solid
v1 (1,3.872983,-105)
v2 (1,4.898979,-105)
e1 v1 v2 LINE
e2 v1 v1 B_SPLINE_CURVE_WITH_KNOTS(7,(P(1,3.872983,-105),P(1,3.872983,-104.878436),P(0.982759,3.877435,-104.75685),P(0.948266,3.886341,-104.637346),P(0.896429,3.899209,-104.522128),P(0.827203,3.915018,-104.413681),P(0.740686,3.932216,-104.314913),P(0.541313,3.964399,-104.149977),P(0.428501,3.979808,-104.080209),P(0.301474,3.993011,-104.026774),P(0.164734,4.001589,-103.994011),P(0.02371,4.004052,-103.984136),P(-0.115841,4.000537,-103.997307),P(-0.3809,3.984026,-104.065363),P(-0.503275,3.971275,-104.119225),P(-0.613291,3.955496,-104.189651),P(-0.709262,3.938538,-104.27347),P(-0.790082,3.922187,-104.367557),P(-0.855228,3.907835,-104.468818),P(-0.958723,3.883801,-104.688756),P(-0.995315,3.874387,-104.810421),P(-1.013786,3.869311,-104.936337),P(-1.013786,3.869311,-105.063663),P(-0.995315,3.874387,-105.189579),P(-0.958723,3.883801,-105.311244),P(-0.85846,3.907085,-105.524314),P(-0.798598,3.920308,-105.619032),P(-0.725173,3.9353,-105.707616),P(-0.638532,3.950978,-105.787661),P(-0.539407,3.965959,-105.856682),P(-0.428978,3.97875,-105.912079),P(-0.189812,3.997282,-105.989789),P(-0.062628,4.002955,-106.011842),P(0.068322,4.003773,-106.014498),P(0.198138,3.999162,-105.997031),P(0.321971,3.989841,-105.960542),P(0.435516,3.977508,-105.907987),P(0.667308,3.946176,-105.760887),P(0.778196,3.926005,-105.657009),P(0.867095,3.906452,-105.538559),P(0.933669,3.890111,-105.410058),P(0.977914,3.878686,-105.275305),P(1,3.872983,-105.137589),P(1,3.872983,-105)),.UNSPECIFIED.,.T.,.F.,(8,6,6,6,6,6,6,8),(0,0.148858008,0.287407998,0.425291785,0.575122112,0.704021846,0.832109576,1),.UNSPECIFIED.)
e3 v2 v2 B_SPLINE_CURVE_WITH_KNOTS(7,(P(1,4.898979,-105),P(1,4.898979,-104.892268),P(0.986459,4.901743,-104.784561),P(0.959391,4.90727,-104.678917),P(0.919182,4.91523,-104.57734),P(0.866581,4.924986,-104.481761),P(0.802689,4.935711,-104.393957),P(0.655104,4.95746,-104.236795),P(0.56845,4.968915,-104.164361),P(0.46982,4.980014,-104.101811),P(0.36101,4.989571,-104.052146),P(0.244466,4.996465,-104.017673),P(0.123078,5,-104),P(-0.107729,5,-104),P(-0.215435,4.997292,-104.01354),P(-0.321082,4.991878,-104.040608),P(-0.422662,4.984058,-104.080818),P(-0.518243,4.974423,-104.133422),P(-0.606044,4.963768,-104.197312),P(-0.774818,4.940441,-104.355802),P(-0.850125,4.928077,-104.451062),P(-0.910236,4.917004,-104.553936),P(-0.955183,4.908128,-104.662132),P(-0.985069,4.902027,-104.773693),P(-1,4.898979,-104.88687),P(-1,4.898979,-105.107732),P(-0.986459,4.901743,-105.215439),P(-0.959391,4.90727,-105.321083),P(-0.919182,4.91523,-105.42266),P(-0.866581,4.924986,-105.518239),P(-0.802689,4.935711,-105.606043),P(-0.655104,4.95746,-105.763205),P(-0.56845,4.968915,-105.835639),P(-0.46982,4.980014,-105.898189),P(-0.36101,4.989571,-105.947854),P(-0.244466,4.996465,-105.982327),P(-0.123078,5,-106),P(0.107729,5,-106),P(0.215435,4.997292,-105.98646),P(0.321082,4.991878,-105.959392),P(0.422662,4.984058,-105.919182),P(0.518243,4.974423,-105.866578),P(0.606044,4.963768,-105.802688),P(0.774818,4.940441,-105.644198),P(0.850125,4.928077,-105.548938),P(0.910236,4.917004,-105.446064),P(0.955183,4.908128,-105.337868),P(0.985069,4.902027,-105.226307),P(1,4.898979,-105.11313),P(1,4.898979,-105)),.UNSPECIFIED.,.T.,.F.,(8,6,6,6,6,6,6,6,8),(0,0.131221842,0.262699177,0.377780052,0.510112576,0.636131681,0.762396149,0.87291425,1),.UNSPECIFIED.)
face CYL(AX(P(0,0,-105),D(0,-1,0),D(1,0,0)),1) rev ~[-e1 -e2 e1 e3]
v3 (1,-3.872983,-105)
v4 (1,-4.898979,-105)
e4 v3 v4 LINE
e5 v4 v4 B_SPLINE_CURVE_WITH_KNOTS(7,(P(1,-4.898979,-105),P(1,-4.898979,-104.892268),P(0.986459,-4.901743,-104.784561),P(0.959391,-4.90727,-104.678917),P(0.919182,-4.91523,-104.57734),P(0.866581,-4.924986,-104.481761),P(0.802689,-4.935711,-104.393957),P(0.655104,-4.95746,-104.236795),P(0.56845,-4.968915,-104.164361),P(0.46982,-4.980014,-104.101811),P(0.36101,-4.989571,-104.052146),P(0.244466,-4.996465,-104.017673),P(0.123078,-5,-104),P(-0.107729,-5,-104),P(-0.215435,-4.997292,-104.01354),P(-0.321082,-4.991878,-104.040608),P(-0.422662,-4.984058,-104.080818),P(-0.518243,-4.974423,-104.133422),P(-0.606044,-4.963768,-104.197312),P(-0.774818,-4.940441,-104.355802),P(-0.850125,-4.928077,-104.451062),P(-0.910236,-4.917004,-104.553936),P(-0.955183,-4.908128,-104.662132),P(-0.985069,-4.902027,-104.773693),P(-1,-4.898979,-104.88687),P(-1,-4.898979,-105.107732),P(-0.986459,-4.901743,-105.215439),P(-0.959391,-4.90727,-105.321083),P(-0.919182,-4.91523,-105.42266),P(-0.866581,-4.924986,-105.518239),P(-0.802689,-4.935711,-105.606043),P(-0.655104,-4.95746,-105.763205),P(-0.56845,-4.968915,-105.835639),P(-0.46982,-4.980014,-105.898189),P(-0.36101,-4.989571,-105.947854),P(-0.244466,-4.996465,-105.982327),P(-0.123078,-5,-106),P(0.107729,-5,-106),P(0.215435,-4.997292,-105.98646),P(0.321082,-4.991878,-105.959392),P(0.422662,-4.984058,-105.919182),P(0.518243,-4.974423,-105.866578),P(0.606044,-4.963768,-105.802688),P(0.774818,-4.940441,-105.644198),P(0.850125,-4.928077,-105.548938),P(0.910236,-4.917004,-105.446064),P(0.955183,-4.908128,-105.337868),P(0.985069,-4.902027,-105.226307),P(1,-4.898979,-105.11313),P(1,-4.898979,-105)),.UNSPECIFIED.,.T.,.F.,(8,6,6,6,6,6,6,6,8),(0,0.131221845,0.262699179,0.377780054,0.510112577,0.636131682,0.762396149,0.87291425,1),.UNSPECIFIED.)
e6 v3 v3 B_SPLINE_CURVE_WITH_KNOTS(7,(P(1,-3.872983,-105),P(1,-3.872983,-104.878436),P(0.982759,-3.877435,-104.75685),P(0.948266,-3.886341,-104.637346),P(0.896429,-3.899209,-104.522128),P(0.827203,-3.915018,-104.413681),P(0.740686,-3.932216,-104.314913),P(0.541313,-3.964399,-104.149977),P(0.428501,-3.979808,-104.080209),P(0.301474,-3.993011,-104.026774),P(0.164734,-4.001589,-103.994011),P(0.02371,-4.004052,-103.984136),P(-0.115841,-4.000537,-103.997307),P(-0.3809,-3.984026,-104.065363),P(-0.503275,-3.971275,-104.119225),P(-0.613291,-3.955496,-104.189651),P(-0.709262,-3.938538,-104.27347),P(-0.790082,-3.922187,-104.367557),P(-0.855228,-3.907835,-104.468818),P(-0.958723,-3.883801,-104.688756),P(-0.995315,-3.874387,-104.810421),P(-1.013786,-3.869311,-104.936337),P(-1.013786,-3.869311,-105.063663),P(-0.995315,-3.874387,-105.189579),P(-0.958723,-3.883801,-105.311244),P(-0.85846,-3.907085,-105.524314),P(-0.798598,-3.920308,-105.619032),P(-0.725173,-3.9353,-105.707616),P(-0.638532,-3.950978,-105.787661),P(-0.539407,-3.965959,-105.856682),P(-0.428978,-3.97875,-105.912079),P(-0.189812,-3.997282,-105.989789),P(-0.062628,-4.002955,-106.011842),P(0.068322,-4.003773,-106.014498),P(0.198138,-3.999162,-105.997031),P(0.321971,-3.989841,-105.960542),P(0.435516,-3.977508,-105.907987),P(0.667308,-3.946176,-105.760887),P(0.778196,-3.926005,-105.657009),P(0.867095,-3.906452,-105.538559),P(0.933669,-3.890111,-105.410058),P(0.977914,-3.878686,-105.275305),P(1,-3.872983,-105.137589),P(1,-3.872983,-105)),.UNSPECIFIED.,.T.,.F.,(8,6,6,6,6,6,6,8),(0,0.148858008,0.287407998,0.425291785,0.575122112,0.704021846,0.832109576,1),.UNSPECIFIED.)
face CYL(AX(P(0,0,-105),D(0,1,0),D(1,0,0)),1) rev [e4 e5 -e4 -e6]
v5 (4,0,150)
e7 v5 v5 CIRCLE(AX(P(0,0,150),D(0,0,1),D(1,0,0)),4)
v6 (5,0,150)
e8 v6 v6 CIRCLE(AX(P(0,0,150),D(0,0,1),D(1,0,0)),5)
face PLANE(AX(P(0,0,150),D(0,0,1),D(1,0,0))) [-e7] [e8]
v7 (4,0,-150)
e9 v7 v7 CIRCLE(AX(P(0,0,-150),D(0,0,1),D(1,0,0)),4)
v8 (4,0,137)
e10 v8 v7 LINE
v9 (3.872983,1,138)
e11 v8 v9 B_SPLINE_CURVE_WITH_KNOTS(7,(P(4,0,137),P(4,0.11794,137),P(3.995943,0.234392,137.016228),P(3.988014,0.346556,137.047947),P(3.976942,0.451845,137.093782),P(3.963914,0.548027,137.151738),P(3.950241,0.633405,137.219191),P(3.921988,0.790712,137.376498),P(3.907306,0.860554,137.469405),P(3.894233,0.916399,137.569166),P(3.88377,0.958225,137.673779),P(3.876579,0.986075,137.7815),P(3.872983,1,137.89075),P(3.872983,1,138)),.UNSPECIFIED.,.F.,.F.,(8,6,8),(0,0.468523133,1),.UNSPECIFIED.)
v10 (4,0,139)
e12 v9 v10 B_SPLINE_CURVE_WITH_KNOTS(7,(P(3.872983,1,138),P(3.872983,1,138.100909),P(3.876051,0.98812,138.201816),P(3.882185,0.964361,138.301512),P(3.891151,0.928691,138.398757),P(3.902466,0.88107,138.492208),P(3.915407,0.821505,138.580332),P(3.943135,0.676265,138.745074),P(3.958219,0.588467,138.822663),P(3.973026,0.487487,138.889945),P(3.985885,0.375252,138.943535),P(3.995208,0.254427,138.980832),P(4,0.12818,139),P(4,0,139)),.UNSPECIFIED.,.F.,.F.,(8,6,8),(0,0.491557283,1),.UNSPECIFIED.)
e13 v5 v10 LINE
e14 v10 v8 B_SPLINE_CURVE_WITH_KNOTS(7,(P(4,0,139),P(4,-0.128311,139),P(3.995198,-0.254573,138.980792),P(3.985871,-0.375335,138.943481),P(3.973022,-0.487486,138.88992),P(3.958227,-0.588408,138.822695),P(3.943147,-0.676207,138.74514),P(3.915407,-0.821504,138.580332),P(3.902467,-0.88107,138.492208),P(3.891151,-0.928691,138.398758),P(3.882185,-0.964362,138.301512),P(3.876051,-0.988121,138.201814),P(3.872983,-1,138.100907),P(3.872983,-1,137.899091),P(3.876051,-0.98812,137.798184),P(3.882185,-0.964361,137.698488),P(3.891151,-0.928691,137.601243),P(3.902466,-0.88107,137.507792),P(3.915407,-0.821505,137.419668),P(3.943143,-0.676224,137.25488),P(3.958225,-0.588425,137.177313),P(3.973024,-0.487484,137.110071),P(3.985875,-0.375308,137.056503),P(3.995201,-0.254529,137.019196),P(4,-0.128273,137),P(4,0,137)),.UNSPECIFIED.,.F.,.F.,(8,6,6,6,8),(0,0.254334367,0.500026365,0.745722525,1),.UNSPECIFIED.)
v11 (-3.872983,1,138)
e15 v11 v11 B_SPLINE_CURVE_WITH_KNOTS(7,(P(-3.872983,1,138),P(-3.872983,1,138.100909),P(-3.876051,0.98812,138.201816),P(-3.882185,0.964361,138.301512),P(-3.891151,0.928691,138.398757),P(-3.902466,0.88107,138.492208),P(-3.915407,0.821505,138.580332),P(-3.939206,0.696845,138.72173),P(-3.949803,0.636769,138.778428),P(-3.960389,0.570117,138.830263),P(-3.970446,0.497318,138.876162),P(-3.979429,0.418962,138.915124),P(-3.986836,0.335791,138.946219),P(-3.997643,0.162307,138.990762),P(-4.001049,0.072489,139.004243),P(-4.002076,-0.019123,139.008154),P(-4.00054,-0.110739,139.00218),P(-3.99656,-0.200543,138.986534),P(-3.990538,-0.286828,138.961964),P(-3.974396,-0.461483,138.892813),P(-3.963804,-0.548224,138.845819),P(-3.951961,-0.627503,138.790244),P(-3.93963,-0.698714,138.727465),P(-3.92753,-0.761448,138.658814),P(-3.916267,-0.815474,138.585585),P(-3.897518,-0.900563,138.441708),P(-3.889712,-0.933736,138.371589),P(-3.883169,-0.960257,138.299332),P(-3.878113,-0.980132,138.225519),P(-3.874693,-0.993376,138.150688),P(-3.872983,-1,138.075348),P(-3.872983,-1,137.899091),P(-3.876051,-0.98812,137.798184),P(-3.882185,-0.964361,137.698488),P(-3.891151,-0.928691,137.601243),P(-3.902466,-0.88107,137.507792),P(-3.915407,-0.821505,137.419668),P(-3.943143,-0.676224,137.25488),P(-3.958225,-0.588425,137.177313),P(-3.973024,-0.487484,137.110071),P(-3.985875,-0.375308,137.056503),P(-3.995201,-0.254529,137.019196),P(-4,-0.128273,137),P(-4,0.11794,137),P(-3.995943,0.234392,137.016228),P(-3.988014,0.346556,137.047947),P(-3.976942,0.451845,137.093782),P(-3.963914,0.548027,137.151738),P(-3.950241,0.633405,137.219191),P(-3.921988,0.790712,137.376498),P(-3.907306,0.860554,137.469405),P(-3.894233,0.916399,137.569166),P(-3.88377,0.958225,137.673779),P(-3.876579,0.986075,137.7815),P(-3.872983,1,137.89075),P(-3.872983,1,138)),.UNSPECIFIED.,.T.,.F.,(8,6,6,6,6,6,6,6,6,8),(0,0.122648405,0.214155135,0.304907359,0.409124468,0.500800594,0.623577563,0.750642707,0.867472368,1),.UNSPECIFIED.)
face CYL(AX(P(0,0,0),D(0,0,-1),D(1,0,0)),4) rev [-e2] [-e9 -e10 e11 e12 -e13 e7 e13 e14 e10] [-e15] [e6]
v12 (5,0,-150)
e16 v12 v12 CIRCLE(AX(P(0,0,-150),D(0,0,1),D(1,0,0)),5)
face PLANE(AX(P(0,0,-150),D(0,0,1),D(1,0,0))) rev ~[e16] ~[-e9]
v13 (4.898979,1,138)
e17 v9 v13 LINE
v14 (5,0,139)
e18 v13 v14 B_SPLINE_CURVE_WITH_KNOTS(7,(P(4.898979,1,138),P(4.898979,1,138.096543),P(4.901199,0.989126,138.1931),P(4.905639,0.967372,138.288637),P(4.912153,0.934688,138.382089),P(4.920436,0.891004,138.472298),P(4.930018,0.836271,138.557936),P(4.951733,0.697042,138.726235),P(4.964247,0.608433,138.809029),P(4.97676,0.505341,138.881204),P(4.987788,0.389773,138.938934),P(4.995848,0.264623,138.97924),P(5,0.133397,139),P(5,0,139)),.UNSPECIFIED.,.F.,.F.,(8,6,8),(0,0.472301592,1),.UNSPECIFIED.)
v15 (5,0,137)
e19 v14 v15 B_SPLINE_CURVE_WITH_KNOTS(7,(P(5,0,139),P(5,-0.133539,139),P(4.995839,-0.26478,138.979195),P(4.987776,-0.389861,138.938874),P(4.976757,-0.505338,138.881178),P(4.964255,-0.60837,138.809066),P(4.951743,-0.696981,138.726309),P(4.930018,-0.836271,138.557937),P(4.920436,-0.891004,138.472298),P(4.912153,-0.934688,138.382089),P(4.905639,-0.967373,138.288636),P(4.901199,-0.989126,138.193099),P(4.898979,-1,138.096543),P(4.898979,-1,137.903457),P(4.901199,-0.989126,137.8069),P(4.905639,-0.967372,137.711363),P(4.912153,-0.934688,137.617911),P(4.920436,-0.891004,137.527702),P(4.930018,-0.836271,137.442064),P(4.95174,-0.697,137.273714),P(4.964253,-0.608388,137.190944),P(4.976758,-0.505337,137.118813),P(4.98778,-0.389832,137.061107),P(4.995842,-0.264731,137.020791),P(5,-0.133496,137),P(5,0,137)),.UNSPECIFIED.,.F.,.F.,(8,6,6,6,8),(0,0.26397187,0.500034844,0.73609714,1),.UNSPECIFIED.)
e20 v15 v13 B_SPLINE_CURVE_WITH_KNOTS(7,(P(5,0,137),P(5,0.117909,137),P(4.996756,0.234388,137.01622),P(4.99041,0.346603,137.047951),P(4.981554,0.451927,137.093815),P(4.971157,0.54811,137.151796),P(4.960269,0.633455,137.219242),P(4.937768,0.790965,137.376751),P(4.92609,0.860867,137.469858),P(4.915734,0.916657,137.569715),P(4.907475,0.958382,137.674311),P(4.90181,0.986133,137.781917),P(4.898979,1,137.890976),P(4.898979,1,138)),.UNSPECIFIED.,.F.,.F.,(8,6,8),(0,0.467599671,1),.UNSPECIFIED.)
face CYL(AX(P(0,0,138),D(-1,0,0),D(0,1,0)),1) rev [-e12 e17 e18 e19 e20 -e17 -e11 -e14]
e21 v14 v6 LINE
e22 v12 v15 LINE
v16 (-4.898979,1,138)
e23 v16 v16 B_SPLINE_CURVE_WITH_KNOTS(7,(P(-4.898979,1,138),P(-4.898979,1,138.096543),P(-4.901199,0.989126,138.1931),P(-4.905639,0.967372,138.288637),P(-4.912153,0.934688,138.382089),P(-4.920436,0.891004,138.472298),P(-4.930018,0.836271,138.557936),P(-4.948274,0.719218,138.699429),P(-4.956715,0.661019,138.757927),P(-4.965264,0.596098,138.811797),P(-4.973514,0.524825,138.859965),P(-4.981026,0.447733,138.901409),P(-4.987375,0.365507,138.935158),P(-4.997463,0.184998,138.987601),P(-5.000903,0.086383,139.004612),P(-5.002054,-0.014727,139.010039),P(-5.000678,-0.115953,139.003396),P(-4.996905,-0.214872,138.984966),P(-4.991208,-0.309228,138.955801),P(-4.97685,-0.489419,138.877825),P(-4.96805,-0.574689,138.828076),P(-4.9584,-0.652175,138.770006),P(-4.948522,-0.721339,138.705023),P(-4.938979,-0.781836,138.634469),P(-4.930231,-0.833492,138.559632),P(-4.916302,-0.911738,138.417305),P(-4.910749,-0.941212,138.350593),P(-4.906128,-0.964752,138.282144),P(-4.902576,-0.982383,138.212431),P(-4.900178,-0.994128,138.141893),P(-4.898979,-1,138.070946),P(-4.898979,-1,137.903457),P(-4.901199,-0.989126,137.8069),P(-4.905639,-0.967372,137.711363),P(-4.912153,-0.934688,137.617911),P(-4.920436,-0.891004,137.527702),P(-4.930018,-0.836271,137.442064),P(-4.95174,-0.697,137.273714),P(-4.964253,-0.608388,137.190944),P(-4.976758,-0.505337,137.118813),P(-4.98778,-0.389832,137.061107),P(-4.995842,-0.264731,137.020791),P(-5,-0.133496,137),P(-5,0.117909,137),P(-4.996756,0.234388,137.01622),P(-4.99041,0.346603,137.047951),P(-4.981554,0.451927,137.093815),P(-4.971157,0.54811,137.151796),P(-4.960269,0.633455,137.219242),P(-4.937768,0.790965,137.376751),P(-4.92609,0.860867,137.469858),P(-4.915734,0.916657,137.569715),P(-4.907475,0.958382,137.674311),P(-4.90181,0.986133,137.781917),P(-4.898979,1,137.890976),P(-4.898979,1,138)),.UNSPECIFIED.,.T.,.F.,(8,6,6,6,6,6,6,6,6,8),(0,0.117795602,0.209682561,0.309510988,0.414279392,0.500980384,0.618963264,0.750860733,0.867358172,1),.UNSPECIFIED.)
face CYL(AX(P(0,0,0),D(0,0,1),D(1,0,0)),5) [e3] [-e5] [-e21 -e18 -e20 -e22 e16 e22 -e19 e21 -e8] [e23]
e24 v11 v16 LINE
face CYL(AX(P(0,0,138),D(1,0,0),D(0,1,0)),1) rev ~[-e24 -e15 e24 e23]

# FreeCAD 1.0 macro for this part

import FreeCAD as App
import Part
import Sketcher
from FreeCAD import Vector
Q = App.Units.Quantity

doc = App.newDocument("Part")
body = doc.addObject("PartDesign::Body", "Body")

# Sketch on XY plane
sketch1 = body.newObject("Sketcher::SketchObject", "Sketch")
sketch1.AttachmentSupport = (doc.getObject("XY_Plane"), [""])
sketch1.MapMode = "FlatFace"
sketch1.addGeometry([
    Part.Circle(Vector(0, 0, 0), Vector(0, 0, 1), 5),
    Part.Circle(Vector(0, 0, 0), Vector(0, 0, 1), 4),
], False)
sketch1.addConstraint([
    Sketcher.Constraint("Coincident", 0, 3, -1, 1),
    Sketcher.Constraint("Coincident", 1, 3, -1, 1),
    Sketcher.Constraint("Diameter", 0, Q("10 mm")),
    Sketcher.Constraint("Diameter", 1, Q("8 mm")),
])
pad1 = body.newObject("PartDesign::Pad", "Pad")
pad1.Profile = sketch1
pad1.Length = 300
pad1.Midplane = True

# Sketch on XZ plane
sketch2 = body.newObject("Sketcher::SketchObject", "Sketch001")
sketch2.AttachmentSupport = (doc.getObject("XZ_Plane"), [""])
sketch2.MapMode = "FlatFace"
sketch2.addGeometry(Part.Circle(Vector(0, -105, 0), Vector(0, 0, 1), 1), False)
sketch2.addConstraint([
    Sketcher.Constraint("PointOnObject", 0, 3, -2),
    Sketcher.Constraint("Diameter", 0, Q("2 mm")),
    Sketcher.Constraint("DistanceY", 0, 3, -1, 1, Q("105 mm")),
])
pocket1 = body.newObject("PartDesign::Pocket", "Pocket")
pocket1.Profile = sketch2
pocket1.Type = "ThroughAll"
pocket1.Midplane = True

# Sketch on YZ plane
sketch3 = body.newObject("Sketcher::SketchObject", "Sketch002")
sketch3.AttachmentSupport = (doc.getObject("YZ_Plane"), [""])
sketch3.MapMode = "FlatFace"
sketch3.addGeometry(Part.Circle(Vector(0, 138, 0), Vector(0, 0, 1), 1), False)
sketch3.addConstraint([
    Sketcher.Constraint("PointOnObject", 0, 3, -2),
    Sketcher.Constraint("Diameter", 0, Q("2 mm")),
    Sketcher.Constraint("DistanceY", -1, 1, 0, 3, Q("138 mm")),
])
pocket2 = body.newObject("PartDesign::Pocket", "Pocket001")
pocket2.Profile = sketch3
pocket2.Type = "ThroughAll"
pocket2.Midplane = True

doc.recompute()
